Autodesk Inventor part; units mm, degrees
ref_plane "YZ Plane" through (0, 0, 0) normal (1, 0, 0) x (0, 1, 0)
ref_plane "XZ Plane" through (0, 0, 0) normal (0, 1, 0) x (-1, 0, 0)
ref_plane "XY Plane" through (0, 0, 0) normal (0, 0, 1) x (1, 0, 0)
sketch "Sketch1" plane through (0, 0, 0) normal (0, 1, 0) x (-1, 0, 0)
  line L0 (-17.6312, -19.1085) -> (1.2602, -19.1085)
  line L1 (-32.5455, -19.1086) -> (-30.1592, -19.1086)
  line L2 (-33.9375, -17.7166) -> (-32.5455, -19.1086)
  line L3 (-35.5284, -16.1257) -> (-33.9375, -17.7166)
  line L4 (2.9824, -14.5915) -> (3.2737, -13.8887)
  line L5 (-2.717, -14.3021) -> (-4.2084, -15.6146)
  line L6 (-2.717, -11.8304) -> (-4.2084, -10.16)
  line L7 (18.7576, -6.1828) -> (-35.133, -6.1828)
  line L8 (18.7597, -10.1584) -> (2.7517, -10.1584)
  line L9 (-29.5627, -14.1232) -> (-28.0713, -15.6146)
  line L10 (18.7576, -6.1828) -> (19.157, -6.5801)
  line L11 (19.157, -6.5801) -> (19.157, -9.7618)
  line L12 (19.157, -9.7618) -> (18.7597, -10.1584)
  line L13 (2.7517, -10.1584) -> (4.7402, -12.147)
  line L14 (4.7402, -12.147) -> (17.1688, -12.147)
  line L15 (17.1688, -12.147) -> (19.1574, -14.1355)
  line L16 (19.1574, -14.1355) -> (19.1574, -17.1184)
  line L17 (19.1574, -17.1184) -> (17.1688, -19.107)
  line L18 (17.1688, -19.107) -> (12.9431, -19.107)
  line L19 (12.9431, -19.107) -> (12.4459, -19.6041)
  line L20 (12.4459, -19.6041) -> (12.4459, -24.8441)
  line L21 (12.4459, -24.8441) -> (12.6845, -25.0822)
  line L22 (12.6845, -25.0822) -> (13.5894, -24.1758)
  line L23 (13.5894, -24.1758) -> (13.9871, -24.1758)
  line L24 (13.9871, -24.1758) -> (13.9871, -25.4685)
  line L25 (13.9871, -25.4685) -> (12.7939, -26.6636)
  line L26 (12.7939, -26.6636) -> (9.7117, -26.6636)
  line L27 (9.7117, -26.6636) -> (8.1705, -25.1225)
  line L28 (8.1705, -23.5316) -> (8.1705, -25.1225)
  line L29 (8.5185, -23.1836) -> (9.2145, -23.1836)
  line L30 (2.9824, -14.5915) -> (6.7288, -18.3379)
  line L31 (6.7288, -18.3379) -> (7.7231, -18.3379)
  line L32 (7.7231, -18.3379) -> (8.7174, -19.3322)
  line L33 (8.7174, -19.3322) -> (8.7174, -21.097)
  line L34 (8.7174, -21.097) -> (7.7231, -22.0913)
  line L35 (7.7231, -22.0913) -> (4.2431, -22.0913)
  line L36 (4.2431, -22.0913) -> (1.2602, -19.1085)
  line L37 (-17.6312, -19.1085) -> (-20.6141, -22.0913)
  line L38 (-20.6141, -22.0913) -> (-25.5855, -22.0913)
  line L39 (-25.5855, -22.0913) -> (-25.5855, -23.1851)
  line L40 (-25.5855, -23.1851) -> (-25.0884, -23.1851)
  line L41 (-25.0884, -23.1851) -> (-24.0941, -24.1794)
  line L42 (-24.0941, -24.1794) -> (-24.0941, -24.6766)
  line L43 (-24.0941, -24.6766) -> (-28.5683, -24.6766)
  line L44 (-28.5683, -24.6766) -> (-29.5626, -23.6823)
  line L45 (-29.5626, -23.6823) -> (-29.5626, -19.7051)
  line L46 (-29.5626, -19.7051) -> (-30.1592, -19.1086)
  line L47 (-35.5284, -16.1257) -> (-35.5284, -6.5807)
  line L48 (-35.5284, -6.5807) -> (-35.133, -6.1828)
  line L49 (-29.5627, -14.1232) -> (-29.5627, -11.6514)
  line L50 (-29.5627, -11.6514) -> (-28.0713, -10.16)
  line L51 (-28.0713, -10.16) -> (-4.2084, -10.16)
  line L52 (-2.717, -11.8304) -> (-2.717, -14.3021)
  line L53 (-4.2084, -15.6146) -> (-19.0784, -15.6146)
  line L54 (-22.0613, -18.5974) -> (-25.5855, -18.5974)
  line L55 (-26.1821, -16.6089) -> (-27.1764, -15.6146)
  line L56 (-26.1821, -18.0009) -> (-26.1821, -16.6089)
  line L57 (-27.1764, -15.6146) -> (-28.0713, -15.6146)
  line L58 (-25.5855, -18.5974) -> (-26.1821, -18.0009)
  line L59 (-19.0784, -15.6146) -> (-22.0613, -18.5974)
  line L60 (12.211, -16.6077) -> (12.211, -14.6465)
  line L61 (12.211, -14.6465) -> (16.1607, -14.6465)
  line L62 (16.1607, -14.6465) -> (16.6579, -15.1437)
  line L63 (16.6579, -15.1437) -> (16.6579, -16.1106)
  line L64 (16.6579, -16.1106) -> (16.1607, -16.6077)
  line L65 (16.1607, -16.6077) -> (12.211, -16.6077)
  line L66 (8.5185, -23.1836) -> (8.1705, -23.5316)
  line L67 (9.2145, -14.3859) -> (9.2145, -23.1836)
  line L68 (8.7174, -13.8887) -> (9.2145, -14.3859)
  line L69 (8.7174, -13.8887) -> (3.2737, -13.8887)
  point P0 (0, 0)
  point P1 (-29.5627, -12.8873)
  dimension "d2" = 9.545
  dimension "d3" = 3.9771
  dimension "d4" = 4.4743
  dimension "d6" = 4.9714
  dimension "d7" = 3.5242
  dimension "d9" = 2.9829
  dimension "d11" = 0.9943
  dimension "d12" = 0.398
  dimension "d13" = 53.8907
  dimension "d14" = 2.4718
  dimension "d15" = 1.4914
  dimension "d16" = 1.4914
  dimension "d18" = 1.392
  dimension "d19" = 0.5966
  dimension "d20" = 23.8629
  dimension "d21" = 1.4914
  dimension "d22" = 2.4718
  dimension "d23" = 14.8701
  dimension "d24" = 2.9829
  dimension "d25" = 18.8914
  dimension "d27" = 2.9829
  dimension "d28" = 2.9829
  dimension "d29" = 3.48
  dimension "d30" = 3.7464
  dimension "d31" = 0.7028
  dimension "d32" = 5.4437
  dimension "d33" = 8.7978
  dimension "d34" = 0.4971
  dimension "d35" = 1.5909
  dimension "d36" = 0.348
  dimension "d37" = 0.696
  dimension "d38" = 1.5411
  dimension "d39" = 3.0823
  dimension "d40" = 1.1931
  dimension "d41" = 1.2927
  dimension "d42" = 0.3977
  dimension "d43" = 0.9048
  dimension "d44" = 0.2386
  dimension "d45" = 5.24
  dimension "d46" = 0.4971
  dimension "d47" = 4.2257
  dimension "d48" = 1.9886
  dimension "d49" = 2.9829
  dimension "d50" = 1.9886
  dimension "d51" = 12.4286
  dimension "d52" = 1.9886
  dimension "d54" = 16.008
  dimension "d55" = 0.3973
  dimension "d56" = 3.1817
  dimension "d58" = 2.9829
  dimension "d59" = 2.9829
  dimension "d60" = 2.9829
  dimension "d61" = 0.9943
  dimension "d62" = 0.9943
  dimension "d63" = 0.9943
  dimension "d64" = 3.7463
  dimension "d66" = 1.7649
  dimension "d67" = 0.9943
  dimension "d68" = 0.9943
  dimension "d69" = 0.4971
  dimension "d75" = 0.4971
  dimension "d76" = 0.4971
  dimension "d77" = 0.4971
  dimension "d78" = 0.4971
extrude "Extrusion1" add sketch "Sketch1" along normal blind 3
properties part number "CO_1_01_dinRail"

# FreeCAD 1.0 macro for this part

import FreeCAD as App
import Part
import Sketcher
from FreeCAD import Vector
Q = App.Units.Quantity


def add_polygon(sketch, points):
    """Adds a closed chain of lines whose ends are joined by coincident constraints."""
    first, n = sketch.GeometryCount, len(points)
    for a, b in zip(points, points[1:] + points[:1]):
        sketch.addGeometry(Part.LineSegment(App.Vector(*a, 0), App.Vector(*b, 0)), False)
    for i in range(n):
        sketch.addConstraint(Sketcher.Constraint("Coincident", first + i, 2, first + (i + 1) % n, 1))

doc = App.newDocument("Part")
body = doc.addObject("PartDesign::Body", "Body")

sketch1 = body.newObject("Sketcher::SketchObject", "Sketch")
sketch1.AttachmentSupport = (doc.getObject("XZ_Plane"), [""])
sketch1.MapMode = "FlatFace"
add_polygon(sketch1, [(20.6141, -22.0913), (17.6312, -19.1085), (-1.2602, -19.1085), (-4.2431, -22.0913), (-7.7231, -22.0913), (-8.7174, -21.097), (-8.7174, -19.3322), (-7.7231, -18.3379), (-6.7288, -18.3379), (-2.9824, -14.5915), (-3.2737, -13.8887), (-8.7174, -13.8887), (-9.2145, -14.3859), (-9.2145, -23.1836), (-8.5185, -23.1836), (-8.1705, -23.5316), (-8.1705, -25.1225), (-9.7117, -26.6636), (-12.7939, -26.6636), (-13.9871, -25.4685), (-13.9871, -24.1758), (-13.5894, -24.1758), (-12.6845, -25.0822), (-12.4459, -24.8441), (-12.4459, -19.6041), (-12.9431, -19.107), (-17.1688, -19.107), (-19.1574, -17.1184), (-19.1574, -14.1355), (-17.1688, -12.147), (-4.7402, -12.147), (-2.7517, -10.1584), (-18.7597, -10.1584), (-19.157, -9.7618), (-19.157, -6.5801), (-18.7576, -6.1828), (35.133, -6.1828), (35.5284, -6.5807), (35.5284, -16.1257), (32.5455, -19.1086), (30.1592, -19.1086), (29.5626, -19.7051), (29.5626, -23.6823), (28.5683, -24.6766), (24.0941, -24.6766), (24.0941, -24.1794), (25.0884, -23.1851), (25.5855, -23.1851), (25.5855, -22.0913)])
add_polygon(sketch1, [(2.717, -11.8304), (2.717, -14.3021), (4.2084, -15.6146), (19.0784, -15.6146), (22.0613, -18.5974), (25.5855, -18.5974), (26.1821, -18.0009), (26.1821, -16.6089), (27.1764, -15.6146), (28.0713, -15.6146), (29.5627, -14.1232), (29.5627, -11.6514), (28.0713, -10.16), (4.2084, -10.16)])
add_polygon(sketch1, [(-16.1607, -16.6077), (-12.211, -16.6077), (-12.211, -14.6465), (-16.1607, -14.6465), (-16.6579, -15.1437), (-16.6579, -16.1106)])
sketch1.addConstraint([
    Sketcher.Constraint("Horizontal", 1),
    Sketcher.Constraint("Horizontal", 3),
    Sketcher.Constraint("Vertical", 5),
    Sketcher.Constraint("Horizontal", 7),
    Sketcher.Constraint("Horizontal", 10),
    Sketcher.Constraint("Vertical", 12),
    Sketcher.Constraint("Horizontal", 13),
    Sketcher.Constraint("Vertical", 15),
    Sketcher.Constraint("Horizontal", 17),
    Sketcher.Constraint("Vertical", 19),
    Sketcher.Constraint("Horizontal", 20),
    Sketcher.Constraint("Vertical", 23),
    Sketcher.Constraint("Horizontal", 25),
    Sketcher.Constraint("Vertical", 27),
    Sketcher.Constraint("Horizontal", 29),
    Sketcher.Constraint("Horizontal", 31),
    Sketcher.Constraint("Vertical", 33),
    Sketcher.Constraint("Horizontal", 35),
    Sketcher.Constraint("Vertical", 37),
    Sketcher.Constraint("Horizontal", 39),
    Sketcher.Constraint("Vertical", 41),
    Sketcher.Constraint("Horizontal", 43),
    Sketcher.Constraint("Vertical", 44),
    Sketcher.Constraint("Horizontal", 46),
    Sketcher.Constraint("Vertical", 47),
    Sketcher.Constraint("Horizontal", 48),
    Sketcher.Constraint("Vertical", 49),
    Sketcher.Constraint("Horizontal", 51),
    Sketcher.Constraint("Horizontal", 53),
    Sketcher.Constraint("Vertical", 55),
    Sketcher.Constraint("Horizontal", 57),
    Sketcher.Constraint("Vertical", 59),
    Sketcher.Constraint("Horizontal", 61),
    Sketcher.Constraint("Horizontal", 63),
    Sketcher.Constraint("Vertical", 64),
    Sketcher.Constraint("Horizontal", 65),
    Sketcher.Constraint("Vertical", 67),
    Sketcher.Constraint("Perpendicular", 0, 2),
    Sketcher.Constraint("Perpendicular", 2, 4),
    Sketcher.Constraint("Perpendicular", 4, 6),
    Sketcher.Constraint("Parallel", 6, 8),
    Sketcher.Constraint("Parallel", 8, 11),
    Sketcher.Constraint("Perpendicular", 11, 14),
    Sketcher.Constraint("Perpendicular", 14, 16),
    Sketcher.Constraint("Parallel", 18, 21),
    Sketcher.Constraint("Perpendicular", 21, 22),
    Sketcher.Constraint("Perpendicular", 16, 24),
    Sketcher.Constraint("Parallel", 24, 26),
    Sketcher.Constraint("Perpendicular", 26, 28),
    Sketcher.Constraint("Parallel", 28, 30),
    Sketcher.Constraint("Parallel", 30, 38),
    Sketcher.Constraint("Parallel", 38, 40),
    Sketcher.Constraint("Parallel", 40, 42),
    Sketcher.Constraint("Parallel", 42, 45),
    Sketcher.Constraint("Perpendicular", 45, 52),
    Sketcher.Constraint("Perpendicular", 52, 54),
    Sketcher.Constraint("Parallel", 54, 56),
    Sketcher.Constraint("Parallel", 56, 58),
    Sketcher.Constraint("Perpendicular", 58, 60),
    Sketcher.Constraint("Perpendicular", 60, 66),
    Sketcher.Constraint("Perpendicular", 66, 68),
    Sketcher.Constraint("Horizontal", 1, 2, 38, 2),
    Sketcher.Constraint("Horizontal", 3, 2, 47, 2),
    Sketcher.Constraint("Horizontal", 51, 2, 56, 2),
    Sketcher.Constraint("Vertical", 3, 2, 6, 2),
    Sketcher.Constraint("Vertical", 5, 2, 10, 2),
    Sketcher.Constraint("Vertical", 25, 2, 28, 2),
    Sketcher.Constraint("Vertical", 47, 2, 53, 2),
    Sketcher.Constraint("Vertical", 41, 2, 58, 2),
    Sketcher.Constraint("Vertical", 57, 2, 60, 2),
    Sketcher.Constraint("Vertical", 50, 2, 61, 2),
    Sketcher.Constraint("Vertical", 65, 2, 68, 2),
    Sketcher.Constraint("Equal", 46, 44),
    Sketcher.Constraint("Equal", 49, 59),
    Sketcher.Constraint("Equal", 0, 2),
    Sketcher.Constraint("Equal", 11, 24),
    Sketcher.Constraint("Equal", 28, 30),
    Sketcher.Constraint("Equal", 2, 38),
    Sketcher.Constraint("Equal", 6, 42),
    Sketcher.Constraint("Equal", 42, 45),
    Sketcher.Constraint("Equal", 38, 52),
    Sketcher.Constraint("Equal", 40, 54),
    Sketcher.Constraint("Equal", 45, 56),
    Sketcher.Constraint("Equal", 24, 66),
    Sketcher.Constraint("DistanceX", 3, 2, 3, 1, Q("0.137 in")),
    Sketcher.Constraint("DistanceX", 13, 1, 13, 2, Q("0.0274 in")),
    Sketcher.Constraint("DistanceY", 19, 1, 19, 2, Q("0.0509 in")),
    Sketcher.Constraint("DistanceY", 23, 1, 23, 2, Q("0.2063 in")),
    Sketcher.Constraint("DistanceY", 49, 2, 49, 1, Q("0.0973 in")),
    Sketcher.Constraint("DistanceY", 55, 1, 55, 2, Q("0.0548 in")),
    Sketcher.Constraint("DistanceX", 1, 2, 1, 1, 18.8914),
    Sketcher.Constraint("DistanceX", 7, 1, 7, 2, 0.9943),
    Sketcher.Constraint("DistanceX", 10, 2, 10, 1, 5.4437),
    Sketcher.Constraint("DistanceX", 17, 2, 17, 1, 3.0822),
    Sketcher.Constraint("DistanceX", 20, 1, 20, 2, 0.3977),
    Sketcher.Constraint("DistanceX", 25, 2, 25, 1, 4.2257),
    Sketcher.Constraint("DistanceX", 29, 1, 29, 2, 12.4286),
    Sketcher.Constraint("DistanceX", 31, 2, 31, 1, 16.008),
    Sketcher.Constraint("DistanceX", 35, 1, 35, 2, 53.8906),
    Sketcher.Constraint("DistanceX", 43, 2, 43, 1, 4.4742),
    Sketcher.Constraint("DistanceX", 46, 1, 46, 2, 0.497),
    Sketcher.Constraint("DistanceX", 48, 2, 48, 1, 4.9714),
    Sketcher.Constraint("DistanceX", 51, 1, 51, 2, 14.87),
    Sketcher.Constraint("DistanceX", 53, 1, 53, 2, 3.5242),
    Sketcher.Constraint("DistanceX", 61, 2, 61, 1, Q("0.9394882 in")),
    Sketcher.Constraint("DistanceY", 5, 1, 5, 2, 1.7648),
    Sketcher.Constraint("DistanceY", 12, 2, 12, 1, 8.7977),
    Sketcher.Constraint("DistanceY", 15, 2, 15, 1, 1.591),
    Sketcher.Constraint("DistanceY", 27, 1, 27, 2, 2.983),
    Sketcher.Constraint("DistanceY", 33, 1, 33, 2, 3.1817),
    Sketcher.Constraint("DistanceY", 37, 2, 37, 1, 9.545),
    Sketcher.Constraint("DistanceY", 41, 2, 41, 1, 3.9772),
    Sketcher.Constraint("DistanceY", 60, 2, -1, 1, Q("0.4 in")),
    Sketcher.Constraint("Distance", 11, 0.703),
    Sketcher.Constraint("DistanceX", 8, 2, -1, 1, 2.9824),
    Sketcher.Constraint("DistanceX", 22, 2, -1, 1, Q("0.49 in")),
    Sketcher.Constraint("Angle", 22, Q("44.94 deg")),
    Sketcher.Constraint("Angle", 32, Q("135.0505 deg")),
    Sketcher.Constraint("Angle", 34, Q("44.849 deg")),
    Sketcher.Constraint("Angle", 36, Q("-45.1806 deg")),
    Sketcher.Constraint("Angle", 50, Q("-41.3492 deg")),
    Sketcher.Constraint("Angle", 62, Q("-131.7598 deg")),
    Sketcher.Constraint("DistanceX", 63, 1, 63, 2, Q("0.1555 in")),
    Sketcher.Constraint("Distance", 8, Q("0.2086 in")),
    Sketcher.Constraint("Distance", 16, Q("0.0858 in")),
    Sketcher.Constraint("Distance", 32, Q("0.0221 in")),
    Sketcher.Constraint("DistanceX", 39, 2, 39, 1, 2.3863),
    Sketcher.Constraint("DistanceX", 57, 1, 57, 2, 0.895),
    Sketcher.Constraint("DistanceY", 47, 1, 47, 2, 1.0938),
    Sketcher.Constraint("DistanceY", 64, 1, 64, 2, 1.9612),
    Sketcher.Constraint("DistanceY", 0, 2, -1, 1, Q("0.7523 in")),
    Sketcher.Constraint("DistanceY", 9, 2, -1, 1, Q("0.5468 in")),
    Sketcher.Constraint("DistanceX", 17, 2, -1, 1, Q("0.5037 in")),
    Sketcher.Constraint("DistanceY", 18, 2, -1, 1, Q("1.0027 in")),
    Sketcher.Constraint("DistanceX", 21, 2, -1, 1, Q("0.4994 in")),
    Sketcher.Constraint("DistanceX", 34, 2, -1, 1, Q("0.7385 in")),
    Sketcher.Constraint("DistanceY", 66, 2, -1, 1, Q("0.5962 in")),
    Sketcher.Constraint("DistanceX", 63, 2, -1, 1, 12.211),
])
pad1 = body.newObject("PartDesign::Pad", "Pad")
pad1.Profile = sketch1
pad1.Length = Q("0.1181102 in")
pad1.Reversed = True

doc.recompute()
